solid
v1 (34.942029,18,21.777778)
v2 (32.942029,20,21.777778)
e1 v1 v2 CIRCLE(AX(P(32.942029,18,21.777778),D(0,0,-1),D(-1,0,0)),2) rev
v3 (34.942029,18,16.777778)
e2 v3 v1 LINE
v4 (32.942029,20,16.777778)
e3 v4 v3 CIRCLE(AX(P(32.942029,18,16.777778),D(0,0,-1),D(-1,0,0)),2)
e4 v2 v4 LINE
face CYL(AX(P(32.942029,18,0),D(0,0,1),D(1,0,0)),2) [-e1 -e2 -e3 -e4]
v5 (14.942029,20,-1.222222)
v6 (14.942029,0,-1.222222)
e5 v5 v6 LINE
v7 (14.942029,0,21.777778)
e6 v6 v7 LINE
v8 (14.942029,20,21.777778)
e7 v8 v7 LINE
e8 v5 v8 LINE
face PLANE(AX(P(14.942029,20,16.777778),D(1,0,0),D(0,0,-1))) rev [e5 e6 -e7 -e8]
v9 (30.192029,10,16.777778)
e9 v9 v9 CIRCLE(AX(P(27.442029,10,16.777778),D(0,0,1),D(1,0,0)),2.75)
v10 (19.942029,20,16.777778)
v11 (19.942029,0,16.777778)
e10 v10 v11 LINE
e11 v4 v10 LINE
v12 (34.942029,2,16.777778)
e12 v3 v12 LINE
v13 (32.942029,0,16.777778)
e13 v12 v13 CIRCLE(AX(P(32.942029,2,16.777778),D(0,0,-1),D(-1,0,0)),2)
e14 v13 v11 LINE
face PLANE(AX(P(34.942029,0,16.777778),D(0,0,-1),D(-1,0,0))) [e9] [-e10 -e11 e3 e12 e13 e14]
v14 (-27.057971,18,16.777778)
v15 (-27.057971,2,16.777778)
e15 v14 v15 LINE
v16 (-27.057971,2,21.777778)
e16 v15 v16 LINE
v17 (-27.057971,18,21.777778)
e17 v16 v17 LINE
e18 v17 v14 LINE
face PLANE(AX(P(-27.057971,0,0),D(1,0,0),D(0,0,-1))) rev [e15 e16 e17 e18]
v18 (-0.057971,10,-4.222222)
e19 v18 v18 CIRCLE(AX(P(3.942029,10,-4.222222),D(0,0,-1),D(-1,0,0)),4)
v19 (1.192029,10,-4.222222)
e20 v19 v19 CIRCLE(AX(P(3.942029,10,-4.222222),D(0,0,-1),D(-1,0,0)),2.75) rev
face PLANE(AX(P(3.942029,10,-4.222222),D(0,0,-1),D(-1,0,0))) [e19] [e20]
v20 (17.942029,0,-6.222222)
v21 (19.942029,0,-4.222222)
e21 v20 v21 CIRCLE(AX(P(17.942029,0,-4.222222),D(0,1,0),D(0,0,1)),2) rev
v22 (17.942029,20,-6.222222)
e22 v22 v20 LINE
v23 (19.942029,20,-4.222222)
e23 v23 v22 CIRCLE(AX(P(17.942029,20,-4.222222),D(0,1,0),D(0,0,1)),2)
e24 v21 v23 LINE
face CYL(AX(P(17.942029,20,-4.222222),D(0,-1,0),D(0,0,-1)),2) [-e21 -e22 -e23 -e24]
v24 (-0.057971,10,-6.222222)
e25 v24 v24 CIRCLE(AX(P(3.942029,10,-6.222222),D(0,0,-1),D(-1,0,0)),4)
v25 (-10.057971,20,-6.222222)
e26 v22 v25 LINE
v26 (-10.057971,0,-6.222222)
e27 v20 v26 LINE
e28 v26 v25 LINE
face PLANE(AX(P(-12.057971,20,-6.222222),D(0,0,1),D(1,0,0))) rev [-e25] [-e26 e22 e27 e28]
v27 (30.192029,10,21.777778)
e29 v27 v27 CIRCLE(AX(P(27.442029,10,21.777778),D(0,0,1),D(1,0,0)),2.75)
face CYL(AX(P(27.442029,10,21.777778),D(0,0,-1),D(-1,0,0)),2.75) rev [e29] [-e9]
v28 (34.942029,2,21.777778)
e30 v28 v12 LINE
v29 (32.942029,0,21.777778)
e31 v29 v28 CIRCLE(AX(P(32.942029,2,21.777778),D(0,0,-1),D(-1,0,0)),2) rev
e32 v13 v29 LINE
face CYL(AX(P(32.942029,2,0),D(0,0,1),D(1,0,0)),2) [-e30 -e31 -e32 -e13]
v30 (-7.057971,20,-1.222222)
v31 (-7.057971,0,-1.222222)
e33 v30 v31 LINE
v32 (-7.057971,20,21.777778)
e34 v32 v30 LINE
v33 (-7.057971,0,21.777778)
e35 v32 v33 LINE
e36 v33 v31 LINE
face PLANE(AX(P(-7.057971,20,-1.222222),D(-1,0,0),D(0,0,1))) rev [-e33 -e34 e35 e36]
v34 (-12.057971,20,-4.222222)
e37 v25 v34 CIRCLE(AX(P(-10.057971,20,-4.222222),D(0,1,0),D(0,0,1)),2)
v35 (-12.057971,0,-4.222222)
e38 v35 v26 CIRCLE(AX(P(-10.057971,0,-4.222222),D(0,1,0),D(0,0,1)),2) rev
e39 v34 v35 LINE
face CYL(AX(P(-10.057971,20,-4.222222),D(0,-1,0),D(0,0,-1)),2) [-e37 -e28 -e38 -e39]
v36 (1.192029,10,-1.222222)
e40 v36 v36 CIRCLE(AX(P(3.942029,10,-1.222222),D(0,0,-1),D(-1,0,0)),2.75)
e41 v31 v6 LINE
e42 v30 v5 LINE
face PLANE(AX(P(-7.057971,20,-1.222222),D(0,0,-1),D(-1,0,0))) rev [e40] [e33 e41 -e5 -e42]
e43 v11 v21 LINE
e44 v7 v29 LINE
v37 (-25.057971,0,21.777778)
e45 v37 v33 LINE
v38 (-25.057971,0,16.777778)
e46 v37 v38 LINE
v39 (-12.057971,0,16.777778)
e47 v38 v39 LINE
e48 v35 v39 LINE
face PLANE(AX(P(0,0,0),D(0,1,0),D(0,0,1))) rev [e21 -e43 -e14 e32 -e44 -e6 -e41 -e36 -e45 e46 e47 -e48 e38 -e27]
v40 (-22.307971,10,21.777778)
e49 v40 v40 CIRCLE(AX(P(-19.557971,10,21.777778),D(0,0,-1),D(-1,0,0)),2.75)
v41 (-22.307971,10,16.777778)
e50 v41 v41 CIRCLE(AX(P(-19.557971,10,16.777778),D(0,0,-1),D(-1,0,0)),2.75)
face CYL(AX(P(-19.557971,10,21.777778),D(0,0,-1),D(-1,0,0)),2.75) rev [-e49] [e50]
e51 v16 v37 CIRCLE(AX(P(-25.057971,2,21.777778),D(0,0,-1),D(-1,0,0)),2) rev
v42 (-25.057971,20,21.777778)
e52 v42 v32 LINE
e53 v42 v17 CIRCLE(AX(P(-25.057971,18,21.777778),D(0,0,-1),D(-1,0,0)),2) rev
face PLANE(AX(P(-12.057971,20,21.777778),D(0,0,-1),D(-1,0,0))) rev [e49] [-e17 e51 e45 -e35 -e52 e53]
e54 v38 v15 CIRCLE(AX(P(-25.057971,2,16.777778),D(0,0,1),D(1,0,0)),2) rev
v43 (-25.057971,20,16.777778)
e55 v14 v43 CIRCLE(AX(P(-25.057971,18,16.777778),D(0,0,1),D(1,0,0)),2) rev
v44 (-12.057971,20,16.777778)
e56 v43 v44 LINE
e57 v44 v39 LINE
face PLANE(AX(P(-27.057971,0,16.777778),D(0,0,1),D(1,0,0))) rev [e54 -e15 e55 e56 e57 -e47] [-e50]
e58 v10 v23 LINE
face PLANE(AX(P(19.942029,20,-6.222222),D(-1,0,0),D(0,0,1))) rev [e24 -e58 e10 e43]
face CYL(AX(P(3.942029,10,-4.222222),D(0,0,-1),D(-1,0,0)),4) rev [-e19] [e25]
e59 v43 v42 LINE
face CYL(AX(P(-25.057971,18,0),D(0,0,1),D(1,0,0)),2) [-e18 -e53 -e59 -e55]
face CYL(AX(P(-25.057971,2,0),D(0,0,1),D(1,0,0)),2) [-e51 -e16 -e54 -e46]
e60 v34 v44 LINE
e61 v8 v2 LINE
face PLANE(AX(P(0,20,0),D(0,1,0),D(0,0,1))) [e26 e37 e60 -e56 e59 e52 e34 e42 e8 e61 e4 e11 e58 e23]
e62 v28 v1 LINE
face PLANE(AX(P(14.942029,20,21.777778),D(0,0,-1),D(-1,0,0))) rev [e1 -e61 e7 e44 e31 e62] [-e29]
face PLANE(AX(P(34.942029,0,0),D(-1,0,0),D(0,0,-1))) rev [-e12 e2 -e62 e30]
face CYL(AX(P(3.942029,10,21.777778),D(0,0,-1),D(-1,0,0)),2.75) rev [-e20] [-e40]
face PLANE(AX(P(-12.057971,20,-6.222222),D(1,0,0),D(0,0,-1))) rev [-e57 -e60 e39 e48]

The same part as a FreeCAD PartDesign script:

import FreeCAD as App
import Part
import Sketcher
from FreeCAD import Vector


def edges_at(feature, points):
    """Names of the edges that pass closest to the given points."""
    edges = feature.Shape.Edges
    near = lambda p: min(range(len(edges)), key=lambda i: edges[i].distToShape(Part.Vertex(*p))[0])
    return sorted({f"Edge{near(p) + 1}" for p in points})

doc = App.newDocument("Part")
body = doc.addObject("PartDesign::Body", "Body")

sketch1 = doc.addObject("Sketcher::SketchObject", "Sketch")
body.addObject(sketch1)
sketch1.AttachmentSupport = (doc.XZ_Plane, [""])
sketch1.MapMode = "FlatFace"
sketch1.addGeometry(Part.LineSegment(Vector(20, -6, 0), Vector(-12, -6, 0)), False)
sketch1.addGeometry(Part.LineSegment(Vector(-12, -6, 0), Vector(-12, 22, 0)), False)
sketch1.addGeometry(Part.LineSegment(Vector(-12, 22, 0), Vector(-7, 22, 0)), False)
sketch1.addGeometry(Part.LineSegment(Vector(-7, 22, 0), Vector(-7, -1, 0)), False)
sketch1.addGeometry(Part.LineSegment(Vector(-7, -1, 0), Vector(15, -1, 0)), False)
sketch1.addGeometry(Part.LineSegment(Vector(15, -1, 0), Vector(15, 22, 0)), False)
sketch1.addGeometry(Part.LineSegment(Vector(15, 22, 0), Vector(20, 22, 0)), False)
sketch1.addGeometry(Part.LineSegment(Vector(20, 22, 0), Vector(20, -6, 0)), False)
sketch1.addConstraint(Sketcher.Constraint("Coincident", 0, 2, 1, 1))
sketch1.addConstraint(Sketcher.Constraint("Coincident", 1, 2, 2, 1))
sketch1.addConstraint(Sketcher.Constraint("Coincident", 2, 2, 3, 1))
sketch1.addConstraint(Sketcher.Constraint("Coincident", 3, 2, 4, 1))
sketch1.addConstraint(Sketcher.Constraint("Coincident", 4, 2, 5, 1))
sketch1.addConstraint(Sketcher.Constraint("Coincident", 5, 2, 6, 1))
sketch1.addConstraint(Sketcher.Constraint("Coincident", 6, 2, 7, 1))
sketch1.addConstraint(Sketcher.Constraint("Coincident", 7, 2, 0, 1))
sketch1.addConstraint(Sketcher.Constraint("Horizontal", 0))
sketch1.addConstraint(Sketcher.Constraint("Vertical", 1))
sketch1.addConstraint(Sketcher.Constraint("Horizontal", 2))
sketch1.addConstraint(Sketcher.Constraint("Vertical", 3))
sketch1.addConstraint(Sketcher.Constraint("Horizontal", 4))
sketch1.addConstraint(Sketcher.Constraint("Vertical", 5))
sketch1.addConstraint(Sketcher.Constraint("Horizontal", 6))
sketch1.addConstraint(Sketcher.Constraint("Vertical", 7))
sketch1.addConstraint(Sketcher.Constraint("Horizontal", 2, 2, 5, 2))
sketch1.addConstraint(Sketcher.Constraint("Equal", 2, 6))
sketch1.addConstraint(Sketcher.Constraint("DistanceX", 0, 2, 0, 1, 32.0))
sketch1.addConstraint(Sketcher.Constraint("DistanceX", 2, 1, 2, 2, 5.0))
sketch1.addConstraint(Sketcher.Constraint("DistanceY", 1, 1, 1, 2, 28.0))
sketch1.addConstraint(Sketcher.Constraint("DistanceY", 3, 2, 3, 1, 23.0))
sketch1.addConstraint(Sketcher.Constraint("DistanceX", 0, 2, -1, 1, 12.057971))
sketch1.addConstraint(Sketcher.Constraint("DistanceY", 0, 2, -1, 1, 6.222222))
pad1 = doc.addObject("PartDesign::Pad", "Pad")
body.addObject(pad1)
pad1.Profile = sketch1
pad1.Length = 20
pad1.Reversed = True

sketch2 = doc.addObject("Sketcher::SketchObject", "Sketch001")
body.addObject(sketch2)
sketch2.AttachmentSupport = (doc.XY_Plane, [""])
sketch2.MapMode = "FlatFace"
sketch2.AttachmentOffset = App.Placement(Vector(0, 0, -6.222222), App.Rotation())
sketch2.addGeometry(Part.Circle(Vector(3.9, 10, 0), Vector(0, 0, 1), 2.8), False)
sketch2.addConstraint(Sketcher.Constraint("Diameter", 0, 5.5))
sketch2.addConstraint(Sketcher.Constraint("DistanceY", -1, 1, 0, 3, 10.0))
sketch2.addConstraint(Sketcher.Constraint("DistanceX", -1, 1, 0, 3, 3.942029))
pocket1 = doc.addObject("PartDesign::Pocket", "Pocket")
body.addObject(pocket1)
pocket1.Profile = sketch2
pocket1.Type = "ThroughAll"
pocket1.Reversed = True

sketch3 = doc.addObject("Sketcher::SketchObject", "Sketch002")
body.addObject(sketch3)
sketch3.AttachmentSupport = (doc.YZ_Plane, [""])
sketch3.MapMode = "FlatFace"
sketch3.AttachmentOffset = App.Placement(Vector(0, 0, -12.057971), App.Rotation())
sketch3.addGeometry(Part.LineSegment(Vector(20, 17, 0), Vector(0, 17, 0)), False)
sketch3.addGeometry(Part.LineSegment(Vector(0, 17, 0), Vector(0, 22, 0)), False)
sketch3.addGeometry(Part.LineSegment(Vector(0, 22, 0), Vector(20, 22, 0)), False)
sketch3.addGeometry(Part.LineSegment(Vector(20, 22, 0), Vector(20, 17, 0)), False)
sketch3.addConstraint(Sketcher.Constraint("Coincident", 0, 2, 1, 1))
sketch3.addConstraint(Sketcher.Constraint("Coincident", 1, 2, 2, 1))
sketch3.addConstraint(Sketcher.Constraint("Coincident", 2, 2, 3, 1))
sketch3.addConstraint(Sketcher.Constraint("Coincident", 3, 2, 0, 1))
sketch3.addConstraint(Sketcher.Constraint("Horizontal", 0))
sketch3.addConstraint(Sketcher.Constraint("Vertical", 1))
sketch3.addConstraint(Sketcher.Constraint("Horizontal", 2))
sketch3.addConstraint(Sketcher.Constraint("Vertical", 3))
sketch3.addConstraint(Sketcher.Constraint("PointOnObject", 0, 2, -2))
sketch3.addConstraint(Sketcher.Constraint("DistanceX", 0, 2, 0, 1, 20.0))
sketch3.addConstraint(Sketcher.Constraint("DistanceY", 1, 1, 1, 2, 5.0))
sketch3.addConstraint(Sketcher.Constraint("DistanceY", -1, 1, 0, 2, 16.777778))
pad2 = doc.addObject("PartDesign::Pad", "Pad001")
body.addObject(pad2)
pad2.Profile = sketch3
pad2.Length = 15
pad2.Reversed = True

sketch4 = doc.addObject("Sketcher::SketchObject", "Sketch003")
body.addObject(sketch4)
sketch4.AttachmentSupport = (doc.XY_Plane, [""])
sketch4.MapMode = "FlatFace"
sketch4.AttachmentOffset = App.Placement(Vector(0, 0, 16.777778), App.Rotation())
sketch4.addGeometry(Part.Circle(Vector(-19.6, 10, 0), Vector(0, 0, 1), 2.8), False)
sketch4.addConstraint(Sketcher.Constraint("Diameter", 0, 5.5))
sketch4.addConstraint(Sketcher.Constraint("DistanceY", -1, 1, 0, 3, 10.0))
sketch4.addConstraint(Sketcher.Constraint("DistanceX", 0, 3, -1, 1, 19.557971))
pocket2 = doc.addObject("PartDesign::Pocket", "Pocket001")
body.addObject(pocket2)
pocket2.Profile = sketch4
pocket2.Type = "ThroughAll"
pocket2.Reversed = True
doc.recompute()

datumplane = doc.addObject("PartDesign::Plane", "DatumPlane")
body.addObject(datumplane)
datumplane.AttachmentSupport = (doc.YZ_Plane, [""])
datumplane.MapMode = "FlatFace"
datumplane.AttachmentOffset = App.Placement(Vector(0, 0, 3.942029), App.Rotation())
mirrored = doc.addObject("PartDesign::Mirrored", "Mirrored")
body.addObject(mirrored)
mirrored.Originals = [pad2, pocket2]
mirrored.MirrorPlane = (datumplane, [""])
body.Tip = mirrored
doc.recompute()

fillet = doc.addObject("PartDesign::Fillet", "Fillet")
body.addObject(fillet)
fillet.Base = (mirrored, edges_at(mirrored, [
    (-12.058, 10, -6.222),
    (19.942, 10, -6.222),
    (-27.058, 0, 19.278),
    (-27.058, 20, 19.278),
    (34.942, 0, 19.278),
    (34.942, 20, 19.278),
]))
fillet.Radius = 2

sketch5 = doc.addObject("Sketcher::SketchObject", "Sketch004")
body.addObject(sketch5)
sketch5.AttachmentSupport = (doc.XY_Plane, [""])
sketch5.MapMode = "FlatFace"
sketch5.AttachmentOffset = App.Placement(Vector(0, 0, -6.222222), App.Rotation())
sketch5.addGeometry(Part.Circle(Vector(3.9, 10, 0), Vector(0, 0, 1), 4), False)
sketch5.addConstraint(Sketcher.Constraint("Diameter", 0, 8.0))
sketch5.addConstraint(Sketcher.Constraint("DistanceY", -1, 1, 0, 3, 10.0))
sketch5.addConstraint(Sketcher.Constraint("DistanceX", -1, 1, 0, 3, 3.942029))
pocket3 = doc.addObject("PartDesign::Pocket", "Pocket002")
body.addObject(pocket3)
pocket3.Profile = sketch5
pocket3.Length = 2
pocket3.Reversed = True

doc.recompute()
